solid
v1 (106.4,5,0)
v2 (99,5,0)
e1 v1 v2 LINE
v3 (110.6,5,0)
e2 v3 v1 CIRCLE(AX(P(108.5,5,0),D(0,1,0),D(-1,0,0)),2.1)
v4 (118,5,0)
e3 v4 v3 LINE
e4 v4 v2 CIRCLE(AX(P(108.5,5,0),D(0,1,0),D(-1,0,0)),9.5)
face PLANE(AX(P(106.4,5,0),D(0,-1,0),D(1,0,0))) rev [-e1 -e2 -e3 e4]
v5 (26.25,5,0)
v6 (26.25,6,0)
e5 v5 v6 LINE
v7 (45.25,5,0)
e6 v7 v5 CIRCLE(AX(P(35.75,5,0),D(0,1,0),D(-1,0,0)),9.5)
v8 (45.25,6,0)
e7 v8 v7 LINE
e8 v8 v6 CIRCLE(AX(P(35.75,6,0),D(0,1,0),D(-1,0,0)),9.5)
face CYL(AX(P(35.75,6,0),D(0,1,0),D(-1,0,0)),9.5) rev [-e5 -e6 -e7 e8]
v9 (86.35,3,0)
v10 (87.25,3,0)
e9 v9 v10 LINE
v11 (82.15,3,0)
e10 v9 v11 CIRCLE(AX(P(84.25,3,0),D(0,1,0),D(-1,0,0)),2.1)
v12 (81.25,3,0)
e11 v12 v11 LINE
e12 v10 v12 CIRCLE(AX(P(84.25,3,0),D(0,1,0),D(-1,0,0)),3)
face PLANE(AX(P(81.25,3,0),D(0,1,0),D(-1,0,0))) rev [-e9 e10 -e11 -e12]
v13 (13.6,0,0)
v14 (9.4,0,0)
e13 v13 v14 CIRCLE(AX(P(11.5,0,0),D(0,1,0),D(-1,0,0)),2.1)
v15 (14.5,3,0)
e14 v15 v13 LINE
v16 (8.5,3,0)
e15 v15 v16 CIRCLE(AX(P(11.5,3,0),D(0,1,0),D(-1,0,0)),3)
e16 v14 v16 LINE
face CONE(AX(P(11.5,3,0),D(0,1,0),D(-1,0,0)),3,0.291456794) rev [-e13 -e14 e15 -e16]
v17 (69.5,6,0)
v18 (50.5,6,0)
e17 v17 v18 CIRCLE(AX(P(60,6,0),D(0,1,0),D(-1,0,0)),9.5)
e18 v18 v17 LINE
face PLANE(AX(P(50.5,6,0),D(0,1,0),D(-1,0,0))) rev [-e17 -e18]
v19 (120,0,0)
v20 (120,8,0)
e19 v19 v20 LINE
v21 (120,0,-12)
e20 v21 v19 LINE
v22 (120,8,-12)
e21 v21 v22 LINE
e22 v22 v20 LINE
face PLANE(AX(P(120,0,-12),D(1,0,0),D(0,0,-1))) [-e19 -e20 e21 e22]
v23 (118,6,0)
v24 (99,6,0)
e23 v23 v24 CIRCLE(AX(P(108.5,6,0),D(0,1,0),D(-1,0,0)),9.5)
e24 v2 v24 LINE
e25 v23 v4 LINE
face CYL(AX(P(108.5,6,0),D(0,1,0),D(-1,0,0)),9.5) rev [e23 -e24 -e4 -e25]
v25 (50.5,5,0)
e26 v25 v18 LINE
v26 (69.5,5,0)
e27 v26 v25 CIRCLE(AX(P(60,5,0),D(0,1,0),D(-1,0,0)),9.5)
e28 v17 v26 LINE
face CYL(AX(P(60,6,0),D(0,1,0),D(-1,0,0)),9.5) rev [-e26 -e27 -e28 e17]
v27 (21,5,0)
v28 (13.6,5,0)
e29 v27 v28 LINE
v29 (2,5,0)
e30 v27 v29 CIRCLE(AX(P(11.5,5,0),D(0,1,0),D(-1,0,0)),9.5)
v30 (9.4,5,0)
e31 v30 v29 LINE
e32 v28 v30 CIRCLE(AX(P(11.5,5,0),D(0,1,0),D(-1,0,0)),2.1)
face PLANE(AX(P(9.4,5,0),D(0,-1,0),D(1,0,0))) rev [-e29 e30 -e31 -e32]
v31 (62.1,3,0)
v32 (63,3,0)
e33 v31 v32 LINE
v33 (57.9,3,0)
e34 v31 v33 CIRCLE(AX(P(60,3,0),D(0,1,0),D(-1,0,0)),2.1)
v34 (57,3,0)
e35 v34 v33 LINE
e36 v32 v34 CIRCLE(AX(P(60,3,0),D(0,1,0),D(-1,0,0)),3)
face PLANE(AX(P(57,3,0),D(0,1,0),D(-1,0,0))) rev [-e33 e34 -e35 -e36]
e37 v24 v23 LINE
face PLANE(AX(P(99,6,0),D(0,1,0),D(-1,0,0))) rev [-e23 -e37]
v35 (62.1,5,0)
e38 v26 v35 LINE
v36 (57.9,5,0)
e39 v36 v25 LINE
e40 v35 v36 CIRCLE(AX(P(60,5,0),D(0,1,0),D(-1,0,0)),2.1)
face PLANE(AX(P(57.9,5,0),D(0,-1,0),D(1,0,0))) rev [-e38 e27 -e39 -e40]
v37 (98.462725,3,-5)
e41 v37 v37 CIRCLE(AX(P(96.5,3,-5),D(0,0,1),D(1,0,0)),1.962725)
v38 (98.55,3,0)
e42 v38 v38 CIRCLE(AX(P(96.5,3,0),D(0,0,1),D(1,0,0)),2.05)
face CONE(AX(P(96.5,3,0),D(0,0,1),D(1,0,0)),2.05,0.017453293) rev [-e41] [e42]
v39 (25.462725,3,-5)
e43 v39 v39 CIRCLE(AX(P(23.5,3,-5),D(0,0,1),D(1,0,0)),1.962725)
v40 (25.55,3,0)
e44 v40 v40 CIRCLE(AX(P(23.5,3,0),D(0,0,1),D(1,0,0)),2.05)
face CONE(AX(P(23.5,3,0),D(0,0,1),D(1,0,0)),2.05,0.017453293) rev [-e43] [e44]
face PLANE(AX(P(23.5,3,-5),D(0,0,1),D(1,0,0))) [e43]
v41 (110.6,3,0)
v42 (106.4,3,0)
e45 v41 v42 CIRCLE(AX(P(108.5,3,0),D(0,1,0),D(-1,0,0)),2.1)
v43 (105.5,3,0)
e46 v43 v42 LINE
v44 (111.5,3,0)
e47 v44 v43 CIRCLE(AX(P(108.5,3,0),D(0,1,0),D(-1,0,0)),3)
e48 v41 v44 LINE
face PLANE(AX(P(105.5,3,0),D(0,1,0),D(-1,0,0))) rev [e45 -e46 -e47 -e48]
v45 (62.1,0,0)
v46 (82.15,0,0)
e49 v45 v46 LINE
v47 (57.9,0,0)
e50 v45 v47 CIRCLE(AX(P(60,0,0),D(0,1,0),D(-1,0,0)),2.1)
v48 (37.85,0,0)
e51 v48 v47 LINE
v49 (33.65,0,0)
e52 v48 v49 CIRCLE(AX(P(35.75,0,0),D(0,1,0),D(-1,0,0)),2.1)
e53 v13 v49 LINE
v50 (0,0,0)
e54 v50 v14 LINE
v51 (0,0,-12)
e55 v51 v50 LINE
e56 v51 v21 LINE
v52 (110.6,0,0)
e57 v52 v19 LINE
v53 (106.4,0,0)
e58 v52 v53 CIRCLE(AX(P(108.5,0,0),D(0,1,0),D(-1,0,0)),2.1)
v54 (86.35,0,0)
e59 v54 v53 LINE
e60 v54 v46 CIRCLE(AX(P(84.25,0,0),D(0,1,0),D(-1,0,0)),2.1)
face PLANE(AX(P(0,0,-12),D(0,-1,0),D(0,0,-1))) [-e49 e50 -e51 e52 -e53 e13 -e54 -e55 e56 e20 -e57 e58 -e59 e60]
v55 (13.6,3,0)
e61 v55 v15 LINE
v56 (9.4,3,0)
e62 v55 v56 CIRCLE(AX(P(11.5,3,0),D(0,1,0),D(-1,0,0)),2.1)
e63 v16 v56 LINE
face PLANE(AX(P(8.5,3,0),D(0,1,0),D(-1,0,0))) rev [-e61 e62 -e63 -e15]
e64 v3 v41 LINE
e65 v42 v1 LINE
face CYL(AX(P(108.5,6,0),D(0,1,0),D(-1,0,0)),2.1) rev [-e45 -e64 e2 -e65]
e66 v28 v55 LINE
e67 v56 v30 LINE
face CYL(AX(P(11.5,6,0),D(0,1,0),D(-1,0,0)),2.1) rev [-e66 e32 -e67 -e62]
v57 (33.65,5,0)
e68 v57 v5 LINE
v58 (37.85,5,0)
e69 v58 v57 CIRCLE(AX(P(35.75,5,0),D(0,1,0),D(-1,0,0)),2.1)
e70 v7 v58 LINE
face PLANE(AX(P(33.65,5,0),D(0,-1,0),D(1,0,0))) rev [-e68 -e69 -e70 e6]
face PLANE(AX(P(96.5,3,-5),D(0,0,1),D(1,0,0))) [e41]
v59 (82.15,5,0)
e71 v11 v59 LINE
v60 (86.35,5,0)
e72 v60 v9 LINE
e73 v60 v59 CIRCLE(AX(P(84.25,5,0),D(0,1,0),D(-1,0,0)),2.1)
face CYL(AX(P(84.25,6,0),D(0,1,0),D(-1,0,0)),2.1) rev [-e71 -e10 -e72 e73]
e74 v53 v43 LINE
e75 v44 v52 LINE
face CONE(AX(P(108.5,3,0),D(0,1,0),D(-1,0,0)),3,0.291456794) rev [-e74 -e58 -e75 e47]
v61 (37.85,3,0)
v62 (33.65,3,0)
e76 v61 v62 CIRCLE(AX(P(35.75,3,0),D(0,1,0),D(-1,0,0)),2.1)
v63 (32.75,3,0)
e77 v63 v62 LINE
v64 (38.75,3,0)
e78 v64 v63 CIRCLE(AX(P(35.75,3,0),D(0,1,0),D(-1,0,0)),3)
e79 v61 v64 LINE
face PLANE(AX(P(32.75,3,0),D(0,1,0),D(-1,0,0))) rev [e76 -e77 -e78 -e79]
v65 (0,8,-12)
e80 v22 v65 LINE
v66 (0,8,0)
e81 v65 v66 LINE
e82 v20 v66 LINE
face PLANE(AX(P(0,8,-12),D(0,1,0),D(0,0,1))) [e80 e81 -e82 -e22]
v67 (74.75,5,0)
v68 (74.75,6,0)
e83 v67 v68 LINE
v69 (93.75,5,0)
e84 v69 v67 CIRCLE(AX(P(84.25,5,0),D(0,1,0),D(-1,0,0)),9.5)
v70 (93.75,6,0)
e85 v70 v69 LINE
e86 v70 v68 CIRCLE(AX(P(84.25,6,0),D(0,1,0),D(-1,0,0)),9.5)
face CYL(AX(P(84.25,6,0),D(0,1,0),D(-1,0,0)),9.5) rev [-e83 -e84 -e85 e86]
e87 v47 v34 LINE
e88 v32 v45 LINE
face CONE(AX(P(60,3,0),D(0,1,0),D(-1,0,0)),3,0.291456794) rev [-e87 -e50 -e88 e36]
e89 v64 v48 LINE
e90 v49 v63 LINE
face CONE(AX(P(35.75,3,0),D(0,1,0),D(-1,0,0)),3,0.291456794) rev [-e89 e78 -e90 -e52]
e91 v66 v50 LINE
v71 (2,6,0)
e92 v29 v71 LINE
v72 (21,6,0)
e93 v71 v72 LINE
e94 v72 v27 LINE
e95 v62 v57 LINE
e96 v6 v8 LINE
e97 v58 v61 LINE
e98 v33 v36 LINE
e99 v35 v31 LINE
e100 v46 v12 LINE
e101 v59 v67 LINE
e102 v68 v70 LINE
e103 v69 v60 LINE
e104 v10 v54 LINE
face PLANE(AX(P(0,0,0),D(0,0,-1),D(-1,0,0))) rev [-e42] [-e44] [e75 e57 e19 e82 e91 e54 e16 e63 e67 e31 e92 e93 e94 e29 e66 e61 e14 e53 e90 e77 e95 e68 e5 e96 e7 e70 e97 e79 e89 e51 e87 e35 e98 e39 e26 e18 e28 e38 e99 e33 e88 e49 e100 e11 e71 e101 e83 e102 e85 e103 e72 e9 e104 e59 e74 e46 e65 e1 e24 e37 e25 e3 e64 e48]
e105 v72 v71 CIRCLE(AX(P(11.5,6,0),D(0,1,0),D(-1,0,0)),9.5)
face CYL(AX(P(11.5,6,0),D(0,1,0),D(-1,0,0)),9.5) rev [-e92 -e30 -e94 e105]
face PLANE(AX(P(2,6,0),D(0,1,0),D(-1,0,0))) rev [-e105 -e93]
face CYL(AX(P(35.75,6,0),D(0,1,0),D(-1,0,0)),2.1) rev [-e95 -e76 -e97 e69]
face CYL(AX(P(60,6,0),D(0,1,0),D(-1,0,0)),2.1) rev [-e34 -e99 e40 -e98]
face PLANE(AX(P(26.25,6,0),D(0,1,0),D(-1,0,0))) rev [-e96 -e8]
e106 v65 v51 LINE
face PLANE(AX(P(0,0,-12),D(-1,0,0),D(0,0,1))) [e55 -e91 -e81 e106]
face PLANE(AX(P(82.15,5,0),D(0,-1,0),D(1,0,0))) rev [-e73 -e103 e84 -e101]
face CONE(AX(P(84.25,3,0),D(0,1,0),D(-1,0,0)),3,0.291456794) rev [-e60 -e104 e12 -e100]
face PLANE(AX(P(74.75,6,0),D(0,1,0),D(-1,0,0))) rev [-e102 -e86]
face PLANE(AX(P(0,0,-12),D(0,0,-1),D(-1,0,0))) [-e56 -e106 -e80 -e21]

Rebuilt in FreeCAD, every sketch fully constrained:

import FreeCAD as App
import Part
import Sketcher
from FreeCAD import Vector
Q = App.Units.Quantity


def faces_at(feature, points):
    """Names of the faces that lie closest to the given points."""
    faces = feature.Shape.Faces
    near = lambda p: min(range(len(faces)), key=lambda i: faces[i].distToShape(Part.Vertex(*p))[0])
    return sorted({f"Face{near(p) + 1}" for p in points})


def add_polygon(sketch, points):
    """Adds a closed chain of lines whose ends are joined by coincident constraints."""
    first, n = sketch.GeometryCount, len(points)
    for a, b in zip(points, points[1:] + points[:1]):
        sketch.addGeometry(Part.LineSegment(App.Vector(*a, 0), App.Vector(*b, 0)), False)
    for i in range(n):
        sketch.addConstraint(Sketcher.Constraint("Coincident", first + i, 2, first + (i + 1) % n, 1))

doc = App.newDocument("Part")
body = doc.addObject("PartDesign::Body", "Body")

# Sketch on XY plane
sketch1 = doc.addObject("Sketcher::SketchObject", "Sketch")
body.addObject(sketch1)
sketch1.AttachmentSupport = (doc.XY_Plane, [""])
sketch1.MapMode = "FlatFace"
add_polygon(sketch1, [(0, 8), (0, 0), (120, 0), (120, 8)])  # lines 0-3
sketch1.addConstraint([
    Sketcher.Constraint("Vertical", 0),
    Sketcher.Constraint("Horizontal", 1),
    Sketcher.Constraint("Vertical", 2),
    Sketcher.Constraint("Horizontal", 3),
    Sketcher.Constraint("Coincident", 0, 2, -1, 1),
    Sketcher.Constraint("DistanceX", 1, 1, 1, 2, Q("120 mm")),
    Sketcher.Constraint("DistanceY", 0, 2, 0, 1, Q("8 mm")),
])
pad1 = doc.addObject("PartDesign::Pad", "Pad")
body.addObject(pad1)
pad1.Profile = sketch1
pad1.Length = 12
pad1.Reversed = True

# Sketch on XY plane
sketch2 = doc.addObject("Sketcher::SketchObject", "Sketch001")
body.addObject(sketch2)
sketch2.AttachmentSupport = (doc.XY_Plane, [""])
sketch2.MapMode = "FlatFace"
add_polygon(sketch2, [(9.4, 3), (8.5, 3), (9.4, 0), (11.5, 0), (11.5, 6), (2, 6), (2, 5), (9.4, 5)])  # lines 0-7
sketch2.addGeometry(Part.LineSegment(Vector(11.5, 6, 0), Vector(11.5, 0, 0)), True)  # axis
sketch2.addConstraint([
    Sketcher.Constraint("Horizontal", 0),
    Sketcher.Constraint("Horizontal", 2),
    Sketcher.Constraint("Vertical", 3),
    Sketcher.Constraint("Horizontal", 4),
    Sketcher.Constraint("Vertical", 5),
    Sketcher.Constraint("Horizontal", 6),
    Sketcher.Constraint("Vertical", 7),
    Sketcher.Constraint("Vertical", 8),
    Sketcher.Constraint("Coincident", 8, 1, 3, 2),
    Sketcher.Constraint("PointOnObject", 1, 2, -1),
    Sketcher.Constraint("PointOnObject", 8, 2, -1),
    Sketcher.Constraint("Vertical", 1, 2, 6, 2),
    Sketcher.Constraint("DistanceY", 3, 1, 3, 2, Q("6 mm")),
    Sketcher.Constraint("DistanceY", 5, 2, 5, 1, Q("1 mm")),
    Sketcher.Constraint("DistanceY", 7, 2, 7, 1, Q("2 mm")),
    Sketcher.Constraint("DistanceX", 0, 2, 0, 1, Q("0.9 mm")),
    Sketcher.Constraint("DistanceX", 2, 1, 2, 2, Q("2.1 mm")),
    Sketcher.Constraint("DistanceX", 4, 2, 4, 1, Q("9.5 mm")),
    Sketcher.Constraint("DistanceX", -1, 1, 4, 2, Q("2 mm")),
])
groove = doc.addObject("PartDesign::Groove", "Groove")
body.addObject(groove)
groove.Profile = sketch2
groove.ReferenceAxis = (sketch2, ["Axis0"])
groove.Angle = 360
doc.recompute()

linearpattern = doc.addObject("PartDesign::LinearPattern", "LinearPattern")
body.addObject(linearpattern)
linearpattern.Originals = [groove]
linearpattern.Direction = (doc.X_Axis, [""])
linearpattern.Mode = "offset"
linearpattern.Offset = 24.25
linearpattern.Occurrences = 5
body.Tip = linearpattern
body2 = doc.addObject("PartDesign::Body", "Body001")

# Sketch on XY plane
sketch3 = doc.addObject("Sketcher::SketchObject", "Sketch002")
body2.addObject(sketch3)
sketch3.AttachmentSupport = (doc.getObject("XY_Plane001"), [""])
sketch3.MapMode = "FlatFace"
sketch3.addGeometry(Part.Circle(Vector(23.5, 3, 0), Vector(0, 0, 1), 2.05), False)
sketch3.addConstraint([
    Sketcher.Constraint("Diameter", 0, Q("4.1 mm")),
    Sketcher.Constraint("DistanceY", -1, 1, 0, 3, Q("3 mm")),
    Sketcher.Constraint("DistanceX", -1, 1, 0, 3, Q("23.5 mm")),
])
pad2 = doc.addObject("PartDesign::Pad", "Pad001")
body2.addObject(pad2)
pad2.Profile = sketch3
pad2.Length = 5
pad2.Reversed = True
doc.recompute()

draft = doc.addObject("PartDesign::Draft", "Draft")
body2.addObject(draft)
draft.Base = (pad2, faces_at(pad2, [(21.45, 3, -2.5)]))
draft.NeutralPlane = (doc.getObject("XY_Plane001"), [""])
draft.Angle = 1
draft.Reversed = True
doc.recompute()

boolean = doc.addObject("PartDesign::Boolean", "Boolean")
body.addObject(boolean)
boolean.Type = "Cut"
boolean.addObjects([body2])
body3 = doc.addObject("PartDesign::Body", "Body002")

# Sketch on XY plane
sketch4 = doc.addObject("Sketcher::SketchObject", "Sketch003")
body3.addObject(sketch4)
sketch4.AttachmentSupport = (doc.getObject("XY_Plane002"), [""])
sketch4.MapMode = "FlatFace"
sketch4.addGeometry(Part.Circle(Vector(96.5, 3, 0), Vector(0, 0, 1), 2.05), False)
sketch4.addConstraint([
    Sketcher.Constraint("Diameter", 0, Q("4.1 mm")),
    Sketcher.Constraint("DistanceY", -1, 1, 0, 3, Q("3 mm")),
    Sketcher.Constraint("DistanceX", -1, 1, 0, 3, Q("96.5 mm")),
])
pad3 = doc.addObject("PartDesign::Pad", "Pad002")
body3.addObject(pad3)
pad3.Profile = sketch4
pad3.Length = 5
pad3.Reversed = True
doc.recompute()

draft2 = doc.addObject("PartDesign::Draft", "Draft001")
body3.addObject(draft2)
draft2.Base = (pad3, faces_at(pad3, [(94.45, 3, -2.5)]))
draft2.NeutralPlane = (doc.getObject("XY_Plane002"), [""])
draft2.Angle = 1
draft2.Reversed = True
doc.recompute()

boolean2 = doc.addObject("PartDesign::Boolean", "Boolean001")
body.addObject(boolean2)
boolean2.Type = "Cut"
boolean2.addObjects([body3])

doc.recompute()
